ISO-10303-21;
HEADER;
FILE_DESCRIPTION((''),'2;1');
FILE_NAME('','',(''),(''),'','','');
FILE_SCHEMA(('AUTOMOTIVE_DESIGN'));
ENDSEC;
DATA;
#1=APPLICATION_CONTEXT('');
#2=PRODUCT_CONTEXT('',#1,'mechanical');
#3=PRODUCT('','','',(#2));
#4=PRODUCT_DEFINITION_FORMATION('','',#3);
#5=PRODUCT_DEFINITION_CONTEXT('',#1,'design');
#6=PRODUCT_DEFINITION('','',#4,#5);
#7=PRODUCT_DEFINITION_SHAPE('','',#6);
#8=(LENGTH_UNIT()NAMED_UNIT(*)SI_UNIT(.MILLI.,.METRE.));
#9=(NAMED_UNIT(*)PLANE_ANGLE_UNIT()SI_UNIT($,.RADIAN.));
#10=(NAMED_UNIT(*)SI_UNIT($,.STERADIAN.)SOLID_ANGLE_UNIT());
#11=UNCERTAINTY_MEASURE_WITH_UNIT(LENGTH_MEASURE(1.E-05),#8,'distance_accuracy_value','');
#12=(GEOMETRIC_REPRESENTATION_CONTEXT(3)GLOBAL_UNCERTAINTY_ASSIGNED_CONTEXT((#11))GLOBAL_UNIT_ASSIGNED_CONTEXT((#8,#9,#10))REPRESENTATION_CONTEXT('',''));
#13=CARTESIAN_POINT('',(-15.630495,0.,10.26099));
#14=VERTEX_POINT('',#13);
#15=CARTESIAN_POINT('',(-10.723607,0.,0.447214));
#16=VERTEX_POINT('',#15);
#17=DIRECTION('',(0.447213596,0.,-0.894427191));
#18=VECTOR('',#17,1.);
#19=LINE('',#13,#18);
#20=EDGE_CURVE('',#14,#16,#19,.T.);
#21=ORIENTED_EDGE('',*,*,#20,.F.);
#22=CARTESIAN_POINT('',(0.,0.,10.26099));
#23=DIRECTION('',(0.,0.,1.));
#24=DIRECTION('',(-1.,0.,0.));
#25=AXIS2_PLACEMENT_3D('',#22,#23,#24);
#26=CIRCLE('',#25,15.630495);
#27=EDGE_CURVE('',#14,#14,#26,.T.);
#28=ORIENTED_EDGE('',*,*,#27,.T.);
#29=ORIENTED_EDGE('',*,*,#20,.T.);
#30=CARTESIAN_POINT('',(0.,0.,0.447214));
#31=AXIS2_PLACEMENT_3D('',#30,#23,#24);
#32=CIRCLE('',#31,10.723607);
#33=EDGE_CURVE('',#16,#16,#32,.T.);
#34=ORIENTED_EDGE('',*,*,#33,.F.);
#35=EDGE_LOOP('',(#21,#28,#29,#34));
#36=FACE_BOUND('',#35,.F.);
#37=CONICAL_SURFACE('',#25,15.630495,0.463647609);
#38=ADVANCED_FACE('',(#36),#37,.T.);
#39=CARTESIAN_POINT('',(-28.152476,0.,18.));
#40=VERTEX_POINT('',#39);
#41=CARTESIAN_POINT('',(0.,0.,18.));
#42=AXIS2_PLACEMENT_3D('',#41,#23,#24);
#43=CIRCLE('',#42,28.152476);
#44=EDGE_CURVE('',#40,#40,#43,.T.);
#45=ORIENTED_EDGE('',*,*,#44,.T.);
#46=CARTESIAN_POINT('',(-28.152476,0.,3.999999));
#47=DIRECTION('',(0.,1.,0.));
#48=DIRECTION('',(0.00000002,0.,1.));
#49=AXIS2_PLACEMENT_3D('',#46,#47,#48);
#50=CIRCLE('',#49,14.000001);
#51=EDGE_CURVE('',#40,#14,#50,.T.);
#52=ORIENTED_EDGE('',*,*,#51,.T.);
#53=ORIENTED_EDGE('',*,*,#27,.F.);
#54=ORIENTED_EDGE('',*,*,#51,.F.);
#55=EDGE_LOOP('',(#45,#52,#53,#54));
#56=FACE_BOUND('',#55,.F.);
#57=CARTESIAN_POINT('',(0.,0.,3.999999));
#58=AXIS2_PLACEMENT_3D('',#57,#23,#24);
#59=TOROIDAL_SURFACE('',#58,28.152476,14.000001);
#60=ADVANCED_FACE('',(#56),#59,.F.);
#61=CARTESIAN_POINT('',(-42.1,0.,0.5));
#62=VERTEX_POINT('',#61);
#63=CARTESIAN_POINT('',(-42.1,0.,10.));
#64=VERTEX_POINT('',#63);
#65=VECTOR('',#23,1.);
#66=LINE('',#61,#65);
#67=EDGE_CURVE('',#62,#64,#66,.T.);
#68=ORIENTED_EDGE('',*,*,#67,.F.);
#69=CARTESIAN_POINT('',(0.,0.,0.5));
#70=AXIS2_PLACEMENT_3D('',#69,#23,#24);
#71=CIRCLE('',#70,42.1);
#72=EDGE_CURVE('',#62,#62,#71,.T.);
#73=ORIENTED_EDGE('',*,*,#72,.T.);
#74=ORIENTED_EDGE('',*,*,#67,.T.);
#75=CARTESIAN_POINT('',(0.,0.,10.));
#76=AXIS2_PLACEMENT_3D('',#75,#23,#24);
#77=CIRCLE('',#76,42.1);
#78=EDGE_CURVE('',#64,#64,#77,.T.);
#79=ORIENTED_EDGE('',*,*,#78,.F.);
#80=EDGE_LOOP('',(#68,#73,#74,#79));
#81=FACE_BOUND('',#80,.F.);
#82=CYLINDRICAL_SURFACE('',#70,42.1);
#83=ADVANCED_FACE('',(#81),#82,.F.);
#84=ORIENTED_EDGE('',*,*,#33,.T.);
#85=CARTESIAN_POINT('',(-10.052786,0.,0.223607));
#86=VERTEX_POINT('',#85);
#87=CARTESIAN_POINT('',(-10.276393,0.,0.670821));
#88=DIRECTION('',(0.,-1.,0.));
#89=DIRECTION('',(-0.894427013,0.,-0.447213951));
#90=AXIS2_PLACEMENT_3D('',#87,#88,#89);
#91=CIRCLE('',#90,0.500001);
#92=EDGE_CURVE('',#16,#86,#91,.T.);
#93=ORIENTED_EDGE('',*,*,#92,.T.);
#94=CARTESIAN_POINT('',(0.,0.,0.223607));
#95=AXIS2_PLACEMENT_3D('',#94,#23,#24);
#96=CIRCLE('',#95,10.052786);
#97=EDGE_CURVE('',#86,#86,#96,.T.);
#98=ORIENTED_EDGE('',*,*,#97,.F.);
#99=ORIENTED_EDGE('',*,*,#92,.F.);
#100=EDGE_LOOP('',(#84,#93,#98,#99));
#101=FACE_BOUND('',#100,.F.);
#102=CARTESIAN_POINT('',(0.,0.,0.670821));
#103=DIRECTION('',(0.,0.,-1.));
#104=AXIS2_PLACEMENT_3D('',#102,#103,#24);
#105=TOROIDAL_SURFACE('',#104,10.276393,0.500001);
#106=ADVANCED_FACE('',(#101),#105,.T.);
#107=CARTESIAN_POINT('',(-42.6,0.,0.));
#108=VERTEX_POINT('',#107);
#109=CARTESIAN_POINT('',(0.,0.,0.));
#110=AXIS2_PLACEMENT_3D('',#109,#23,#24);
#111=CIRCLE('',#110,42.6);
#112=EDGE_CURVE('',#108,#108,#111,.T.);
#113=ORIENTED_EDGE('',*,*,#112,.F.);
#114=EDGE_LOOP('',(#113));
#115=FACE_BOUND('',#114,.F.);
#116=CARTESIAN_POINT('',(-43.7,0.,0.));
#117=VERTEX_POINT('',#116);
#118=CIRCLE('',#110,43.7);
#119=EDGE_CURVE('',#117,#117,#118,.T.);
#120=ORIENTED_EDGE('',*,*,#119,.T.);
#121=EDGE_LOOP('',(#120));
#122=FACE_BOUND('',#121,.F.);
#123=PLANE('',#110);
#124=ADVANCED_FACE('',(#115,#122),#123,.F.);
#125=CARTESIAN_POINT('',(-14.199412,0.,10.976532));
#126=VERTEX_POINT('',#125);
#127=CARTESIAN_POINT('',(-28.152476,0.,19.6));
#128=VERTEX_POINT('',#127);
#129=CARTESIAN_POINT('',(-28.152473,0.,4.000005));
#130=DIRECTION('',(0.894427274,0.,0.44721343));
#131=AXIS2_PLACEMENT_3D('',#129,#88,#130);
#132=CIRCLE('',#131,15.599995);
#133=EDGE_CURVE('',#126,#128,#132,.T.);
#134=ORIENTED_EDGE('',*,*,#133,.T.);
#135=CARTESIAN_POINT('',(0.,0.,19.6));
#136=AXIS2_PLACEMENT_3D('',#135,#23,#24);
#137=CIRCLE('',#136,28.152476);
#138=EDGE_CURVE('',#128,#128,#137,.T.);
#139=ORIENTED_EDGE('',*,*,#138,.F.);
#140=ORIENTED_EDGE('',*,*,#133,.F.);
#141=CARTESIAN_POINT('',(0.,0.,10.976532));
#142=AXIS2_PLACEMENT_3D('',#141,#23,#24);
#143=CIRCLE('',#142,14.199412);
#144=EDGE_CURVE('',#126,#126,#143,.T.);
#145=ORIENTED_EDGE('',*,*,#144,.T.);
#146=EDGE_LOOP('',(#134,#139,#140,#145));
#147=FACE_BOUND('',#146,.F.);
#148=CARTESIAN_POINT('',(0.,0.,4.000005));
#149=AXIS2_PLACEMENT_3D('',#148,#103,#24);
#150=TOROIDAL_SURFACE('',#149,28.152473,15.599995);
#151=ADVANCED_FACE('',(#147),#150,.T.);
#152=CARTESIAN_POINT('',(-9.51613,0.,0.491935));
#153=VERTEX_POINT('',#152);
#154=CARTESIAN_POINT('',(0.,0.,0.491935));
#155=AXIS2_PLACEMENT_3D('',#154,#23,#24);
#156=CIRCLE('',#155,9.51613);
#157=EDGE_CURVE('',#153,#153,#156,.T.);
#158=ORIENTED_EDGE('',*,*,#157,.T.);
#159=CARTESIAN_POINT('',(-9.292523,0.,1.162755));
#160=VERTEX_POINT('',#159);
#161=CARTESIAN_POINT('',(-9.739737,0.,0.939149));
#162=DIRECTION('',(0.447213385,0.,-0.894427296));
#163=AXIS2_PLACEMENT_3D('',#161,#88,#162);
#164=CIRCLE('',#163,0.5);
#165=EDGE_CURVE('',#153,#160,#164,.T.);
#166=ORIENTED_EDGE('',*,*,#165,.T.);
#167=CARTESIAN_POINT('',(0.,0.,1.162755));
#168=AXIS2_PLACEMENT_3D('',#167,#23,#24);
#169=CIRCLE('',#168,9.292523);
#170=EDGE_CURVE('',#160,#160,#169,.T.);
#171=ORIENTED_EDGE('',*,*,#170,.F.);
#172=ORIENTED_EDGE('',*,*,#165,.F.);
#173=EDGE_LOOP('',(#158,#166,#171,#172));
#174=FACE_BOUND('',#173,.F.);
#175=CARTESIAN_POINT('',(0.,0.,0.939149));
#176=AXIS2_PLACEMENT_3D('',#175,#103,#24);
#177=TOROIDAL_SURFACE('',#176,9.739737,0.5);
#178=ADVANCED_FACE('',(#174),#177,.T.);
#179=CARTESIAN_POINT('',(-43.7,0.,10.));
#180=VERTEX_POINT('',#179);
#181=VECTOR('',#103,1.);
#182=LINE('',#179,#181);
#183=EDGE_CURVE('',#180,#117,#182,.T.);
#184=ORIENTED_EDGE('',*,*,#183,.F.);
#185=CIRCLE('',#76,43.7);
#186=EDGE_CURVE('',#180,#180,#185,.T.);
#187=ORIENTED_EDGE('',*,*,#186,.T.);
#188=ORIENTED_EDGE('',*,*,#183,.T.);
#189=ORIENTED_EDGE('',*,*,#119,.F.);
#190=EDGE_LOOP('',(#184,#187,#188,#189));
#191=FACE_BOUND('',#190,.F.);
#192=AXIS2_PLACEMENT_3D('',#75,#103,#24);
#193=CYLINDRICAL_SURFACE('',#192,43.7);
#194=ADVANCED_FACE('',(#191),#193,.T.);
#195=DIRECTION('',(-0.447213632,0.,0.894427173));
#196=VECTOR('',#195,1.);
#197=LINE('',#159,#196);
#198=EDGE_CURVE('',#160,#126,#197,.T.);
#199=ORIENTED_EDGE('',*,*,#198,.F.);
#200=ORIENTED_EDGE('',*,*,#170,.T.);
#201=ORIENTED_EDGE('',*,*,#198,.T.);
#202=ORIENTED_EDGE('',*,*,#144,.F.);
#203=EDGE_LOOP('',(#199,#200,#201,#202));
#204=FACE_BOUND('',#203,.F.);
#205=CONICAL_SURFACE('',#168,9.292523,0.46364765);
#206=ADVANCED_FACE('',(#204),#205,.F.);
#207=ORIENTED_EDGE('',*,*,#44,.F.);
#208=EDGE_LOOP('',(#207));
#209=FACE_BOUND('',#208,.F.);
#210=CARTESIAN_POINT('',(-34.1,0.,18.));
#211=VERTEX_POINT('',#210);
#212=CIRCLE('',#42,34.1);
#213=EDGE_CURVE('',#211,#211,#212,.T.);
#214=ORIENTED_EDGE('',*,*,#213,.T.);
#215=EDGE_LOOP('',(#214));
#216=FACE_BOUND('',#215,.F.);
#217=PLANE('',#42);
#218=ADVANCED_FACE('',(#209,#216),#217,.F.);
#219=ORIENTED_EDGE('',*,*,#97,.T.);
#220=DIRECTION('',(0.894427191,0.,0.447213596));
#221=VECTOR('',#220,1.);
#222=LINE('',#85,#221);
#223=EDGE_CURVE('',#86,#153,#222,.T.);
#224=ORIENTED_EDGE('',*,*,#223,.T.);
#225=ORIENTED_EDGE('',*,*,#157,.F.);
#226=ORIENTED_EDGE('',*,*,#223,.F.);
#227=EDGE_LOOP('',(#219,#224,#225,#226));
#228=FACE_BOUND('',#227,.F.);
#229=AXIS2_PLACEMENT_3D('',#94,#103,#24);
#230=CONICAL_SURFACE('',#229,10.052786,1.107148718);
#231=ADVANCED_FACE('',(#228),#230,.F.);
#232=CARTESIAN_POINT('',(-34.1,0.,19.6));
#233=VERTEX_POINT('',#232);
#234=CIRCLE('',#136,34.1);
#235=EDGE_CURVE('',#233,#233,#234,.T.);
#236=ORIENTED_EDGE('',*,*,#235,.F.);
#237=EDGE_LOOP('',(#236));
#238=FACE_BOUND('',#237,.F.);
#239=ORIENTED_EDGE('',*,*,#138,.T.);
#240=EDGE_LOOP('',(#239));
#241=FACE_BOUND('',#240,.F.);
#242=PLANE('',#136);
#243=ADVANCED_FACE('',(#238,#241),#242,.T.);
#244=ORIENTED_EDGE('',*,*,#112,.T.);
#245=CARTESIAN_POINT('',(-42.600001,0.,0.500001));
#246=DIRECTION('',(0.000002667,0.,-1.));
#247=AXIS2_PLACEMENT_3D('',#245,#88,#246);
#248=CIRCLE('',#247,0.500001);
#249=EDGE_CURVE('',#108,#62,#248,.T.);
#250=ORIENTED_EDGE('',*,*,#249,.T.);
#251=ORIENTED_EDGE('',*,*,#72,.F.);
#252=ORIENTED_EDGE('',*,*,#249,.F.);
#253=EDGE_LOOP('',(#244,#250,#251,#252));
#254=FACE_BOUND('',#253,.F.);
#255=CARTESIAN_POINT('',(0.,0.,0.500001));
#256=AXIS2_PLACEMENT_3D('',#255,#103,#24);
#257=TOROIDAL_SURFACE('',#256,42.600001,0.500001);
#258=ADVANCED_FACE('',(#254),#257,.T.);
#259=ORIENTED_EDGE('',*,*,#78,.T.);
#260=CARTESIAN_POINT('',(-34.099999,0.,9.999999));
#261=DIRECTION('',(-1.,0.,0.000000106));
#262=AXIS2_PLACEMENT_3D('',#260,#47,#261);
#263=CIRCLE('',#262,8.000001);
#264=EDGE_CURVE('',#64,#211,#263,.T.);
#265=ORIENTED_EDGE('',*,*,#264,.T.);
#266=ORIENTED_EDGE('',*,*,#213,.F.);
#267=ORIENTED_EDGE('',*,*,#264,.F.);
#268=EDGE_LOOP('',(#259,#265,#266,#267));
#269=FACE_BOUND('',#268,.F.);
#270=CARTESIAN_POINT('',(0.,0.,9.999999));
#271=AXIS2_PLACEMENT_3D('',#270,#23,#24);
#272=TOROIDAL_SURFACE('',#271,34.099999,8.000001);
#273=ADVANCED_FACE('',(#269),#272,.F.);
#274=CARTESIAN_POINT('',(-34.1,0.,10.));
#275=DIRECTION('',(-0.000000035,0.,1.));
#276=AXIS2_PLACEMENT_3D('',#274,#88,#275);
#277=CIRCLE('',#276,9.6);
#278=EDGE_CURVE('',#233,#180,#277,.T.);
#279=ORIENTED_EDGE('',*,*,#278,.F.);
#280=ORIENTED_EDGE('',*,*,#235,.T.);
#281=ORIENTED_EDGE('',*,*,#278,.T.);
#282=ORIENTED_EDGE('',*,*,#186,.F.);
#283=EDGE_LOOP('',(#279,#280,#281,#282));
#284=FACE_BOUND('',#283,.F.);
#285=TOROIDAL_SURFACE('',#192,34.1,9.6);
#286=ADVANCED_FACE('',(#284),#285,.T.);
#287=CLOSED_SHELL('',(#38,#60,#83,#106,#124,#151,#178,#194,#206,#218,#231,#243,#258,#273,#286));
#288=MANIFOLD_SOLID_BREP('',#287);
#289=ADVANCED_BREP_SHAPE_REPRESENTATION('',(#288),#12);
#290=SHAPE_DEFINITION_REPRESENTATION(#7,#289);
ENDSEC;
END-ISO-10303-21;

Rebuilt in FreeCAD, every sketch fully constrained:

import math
import FreeCAD as App
import Part
import Sketcher

V = App.Vector

doc = App.newDocument("Part")
body = doc.addObject("PartDesign::Body", "Body")

# Sketch on XZ plane
sketch1 = body.newObject("Sketcher::SketchObject", "Sketch")
sketch1.AttachmentSupport = (doc.getObject("XZ_Plane"), [""])
sketch1.MapMode = "FlatFace"
sketch1.addGeometry([
    Part.LineSegment(V(-15.630495, 10.26099, 0), V(-10.723607, 0.447214, 0)),  # 0
    Part.ArcOfCircle(Part.Circle(V(-10.276393, 0.670821, 0), V(0, 0, 1), 0.500001), math.radians(-153.434926), math.radians(-63.434972)),  # 1
    Part.LineSegment(V(-10.052786, 0.223607, 0), V(-9.51613, 0.491935, 0)),  # 2
    Part.ArcOfCircle(Part.Circle(V(-9.739737, 0.939149, 0), V(0, 0, 1), 0.5), math.radians(-63.434962), math.radians(26.565013)),  # 3
    Part.LineSegment(V(-9.292523, 1.162755, 0), V(-14.199412, 10.976532, 0)),  # 4
    Part.ArcOfCircle(Part.Circle(V(-28.152473, 4.000005, 0), V(0, 0, 1), 15.599995), math.radians(26.565041), math.radians(90.000009)),  # 5
    Part.LineSegment(V(-28.152476, 19.6, 0), V(-34.1, 19.6, 0)),  # 6
    Part.ArcOfCircle(Part.Circle(V(-34.1, 10, 0), V(0, 0, 1), 9.6), math.radians(90.000002), math.radians(179.999998)),  # 7
    Part.LineSegment(V(-43.7, 10, 0), V(-43.7, 0, 0)),  # 8
    Part.LineSegment(V(-43.7, 0, 0), V(-42.6, 0, 0)),  # 9
    Part.ArcOfCircle(Part.Circle(V(-42.600001, 0.500001, 0), V(0, 0, 1), 0.500001), math.radians(-89.999847), math.radians(-0.000153)),  # 10
    Part.LineSegment(V(-42.1, 0.5, 0), V(-42.1, 10, 0)),  # 11
    Part.ArcOfCircle(Part.Circle(V(-34.099999, 9.999999, 0), V(0, 0, 1), 8.000001), math.radians(90.000006), math.radians(179.999994)),  # 12
    Part.LineSegment(V(-34.1, 18, 0), V(-28.152476, 18, 0)),  # 13
    Part.ArcOfCircle(Part.Circle(V(-28.152476, 3.999999, 0), V(0, 0, 1), 14.000001), math.radians(26.565051), math.radians(89.999999)),  # 14
], False)
sketch1.addConstraint([
    Sketcher.Constraint("Coincident", 0, 2, 1, 1),
    Sketcher.Constraint("Coincident", 1, 2, 2, 1),
    Sketcher.Constraint("Coincident", 2, 2, 3, 1),
    Sketcher.Constraint("Coincident", 3, 2, 4, 1),
    Sketcher.Constraint("Coincident", 4, 2, 5, 1),
    Sketcher.Constraint("Coincident", 5, 2, 6, 1),
    Sketcher.Constraint("Coincident", 6, 2, 7, 1),
    Sketcher.Constraint("Coincident", 7, 2, 8, 1),
    Sketcher.Constraint("Coincident", 8, 2, 9, 1),
    Sketcher.Constraint("Coincident", 9, 2, 10, 1),
    Sketcher.Constraint("Coincident", 10, 2, 11, 1),
    Sketcher.Constraint("Coincident", 11, 2, 12, 2),
    Sketcher.Constraint("Coincident", 12, 1, 13, 1),
    Sketcher.Constraint("Coincident", 13, 2, 14, 2),
    Sketcher.Constraint("Coincident", 14, 1, 0, 1),
    Sketcher.Constraint("Horizontal", 6),
    Sketcher.Constraint("Vertical", 8),
    Sketcher.Constraint("Horizontal", 9),
    Sketcher.Constraint("Vertical", 11),
    Sketcher.Constraint("Horizontal", 13),
    Sketcher.Constraint("Coincident", 12, 3, 7, 3),
    Sketcher.Constraint("Coincident", 14, 3, 5, 3),
    Sketcher.Constraint("PointOnObject", 8, 2, -1),
    Sketcher.Constraint("Radius", 12, 8.000001),
    Sketcher.Constraint("Radius", 14, 14.000001),
    Sketcher.Constraint("Radius", 1, 0.500001),
    Sketcher.Constraint("Radius", 3, 0.5),
    Sketcher.Constraint("Radius", 7, 9.6),
    Sketcher.Constraint("Radius", 10, 0.500001),
    Sketcher.Constraint("DistanceY", 8, 2, 8, 1, 10.0),
    Sketcher.Constraint("DistanceX", 9, 1, 9, 2, 1.1),
    Sketcher.Constraint("DistanceY", 11, 1, 11, 2, 9.5),
    Sketcher.Constraint("DistanceY", -1, 1, 7, 3, 10.0),
    Sketcher.Constraint("DistanceY", -1, 1, 11, 2, 10.0),
    Sketcher.Constraint("DistanceX", 11, 2, 12, 1, 8.0),
    Sketcher.Constraint("Distance", 2, 0.6),
    Sketcher.Constraint("DistanceX", 7, 3, -1, 1, 34.1),
    Sketcher.Constraint("DistanceX", 6, 2, -1, 1, 34.1),
    Sketcher.Constraint("DistanceX", 6, 2, 6, 1, 5.947524),
    Sketcher.Constraint("DistanceX", 13, 1, 13, 2, 5.947524),
    Sketcher.Constraint("DistanceY", -1, 1, 1, 3, 0.670821),
    Sketcher.Constraint("DistanceY", -1, 1, 3, 3, 0.939149),
    Sketcher.Constraint("DistanceX", 2, 2, -1, 1, 9.51613),
    Sketcher.Constraint("DistanceY", -1, 1, 14, 1, 10.26099),
    Sketcher.Constraint("DistanceX", 5, 3, 1, 3, 17.876081),
    Sketcher.Constraint("DistanceX", 10, 3, 1, 3, 32.323608),
    Sketcher.Constraint("DistanceX", 0, 2, 3, 3, 0.98387),
    Sketcher.Constraint("DistanceY", 0, 2, 5, 3, 3.552791),
    Sketcher.Constraint("DistanceY", 2, 2, 3, 2, 0.67082),
    Sketcher.Constraint("DistanceX", 4, 2, 3, 2, 4.906889),
])
revolution = body.newObject("PartDesign::Revolution", "Revolution")
revolution.Profile = sketch1
revolution.ReferenceAxis = (sketch1, ["V_Axis"])
revolution.Angle = 360

doc.recompute()
